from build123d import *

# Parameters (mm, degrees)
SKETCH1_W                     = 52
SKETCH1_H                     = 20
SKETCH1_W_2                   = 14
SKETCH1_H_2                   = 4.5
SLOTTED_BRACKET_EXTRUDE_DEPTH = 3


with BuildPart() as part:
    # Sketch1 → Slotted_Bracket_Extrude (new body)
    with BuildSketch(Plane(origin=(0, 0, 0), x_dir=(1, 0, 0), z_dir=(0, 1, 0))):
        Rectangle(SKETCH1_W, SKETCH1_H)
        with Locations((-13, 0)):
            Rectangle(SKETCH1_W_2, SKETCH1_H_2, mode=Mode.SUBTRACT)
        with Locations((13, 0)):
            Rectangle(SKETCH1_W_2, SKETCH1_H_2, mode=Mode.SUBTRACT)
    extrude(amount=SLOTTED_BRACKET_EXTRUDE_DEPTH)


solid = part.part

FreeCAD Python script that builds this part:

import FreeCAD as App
import Part
import Sketcher

V = App.Vector

doc = App.newDocument("Part")
body = doc.addObject("PartDesign::Body", "Body")

sketch1 = doc.addObject("Sketcher::SketchObject", "Sketch")
body.addObject(sketch1)
sketch1.AttachmentSupport = (doc.XZ_Plane, [""])
sketch1.MapMode = "FlatFace"
sketch1.addGeometry([
    Part.LineSegment(V(-26, -10, 0), V(-26, 10, 0)),
    Part.LineSegment(V(-26, 10, 0), V(26, 10, 0)),
    Part.LineSegment(V(26, 10, 0), V(26, -10, 0)),
    Part.LineSegment(V(26, -10, 0), V(-26, -10, 0)),
    Part.LineSegment(V(-6, 2.25, 0), V(-20, 2.25, 0)),
    Part.LineSegment(V(-20, 2.25, 0), V(-20, -2.25, 0)),
    Part.LineSegment(V(-20, -2.25, 0), V(-6, -2.25, 0)),
    Part.LineSegment(V(-6, -2.25, 0), V(-6, 2.25, 0)),
    Part.LineSegment(V(20, 2.25, 0), V(6, 2.25, 0)),
    Part.LineSegment(V(6, 2.25, 0), V(6, -2.25, 0)),
    Part.LineSegment(V(6, -2.25, 0), V(20, -2.25, 0)),
    Part.LineSegment(V(20, -2.25, 0), V(20, 2.25, 0)),
], False)
sketch1.addConstraint([
    Sketcher.Constraint("Coincident", 0, 2, 1, 1),
    Sketcher.Constraint("Coincident", 1, 2, 2, 1),
    Sketcher.Constraint("Coincident", 2, 2, 3, 1),
    Sketcher.Constraint("Coincident", 3, 2, 0, 1),
    Sketcher.Constraint("Coincident", 4, 2, 5, 1),
    Sketcher.Constraint("Coincident", 5, 2, 6, 1),
    Sketcher.Constraint("Coincident", 6, 2, 7, 1),
    Sketcher.Constraint("Coincident", 7, 2, 4, 1),
    Sketcher.Constraint("Coincident", 8, 2, 9, 1),
    Sketcher.Constraint("Coincident", 9, 2, 10, 1),
    Sketcher.Constraint("Coincident", 10, 2, 11, 1),
    Sketcher.Constraint("Coincident", 11, 2, 8, 1),
    Sketcher.Constraint("Vertical", 0),
    Sketcher.Constraint("Horizontal", 1),
    Sketcher.Constraint("Vertical", 2),
    Sketcher.Constraint("Horizontal", 3),
    Sketcher.Constraint("Horizontal", 4),
    Sketcher.Constraint("Vertical", 5),
    Sketcher.Constraint("Horizontal", 6),
    Sketcher.Constraint("Vertical", 7),
    Sketcher.Constraint("Horizontal", 8),
    Sketcher.Constraint("Vertical", 9),
    Sketcher.Constraint("Horizontal", 10),
    Sketcher.Constraint("Vertical", 11),
    Sketcher.Constraint("Symmetric", 0, 2, 2, 2, -1, 1),
    Sketcher.Constraint("Symmetric", 6, 2, 8, 2, -1, 1),
    Sketcher.Constraint("Symmetric", 4, 2, 10, 2, -1, 1),
    Sketcher.Constraint("Horizontal", 7, 2, 8, 2),
    Sketcher.Constraint("DistanceX", 1, 1, 1, 2, 52.0),
    Sketcher.Constraint("DistanceX", 4, 2, 4, 1, 14.0),
    Sketcher.Constraint("DistanceY", 0, 1, 0, 2, 20.0),
    Sketcher.Constraint("DistanceY", 5, 2, 5, 1, 4.5),
    Sketcher.Constraint("DistanceX", 4, 2, -1, 1, 20.0),
])
pad1 = doc.addObject("PartDesign::Pad", "Pad")
body.addObject(pad1)
pad1.Profile = sketch1
pad1.Length = 3
pad1.Reversed = True

doc.recompute()
